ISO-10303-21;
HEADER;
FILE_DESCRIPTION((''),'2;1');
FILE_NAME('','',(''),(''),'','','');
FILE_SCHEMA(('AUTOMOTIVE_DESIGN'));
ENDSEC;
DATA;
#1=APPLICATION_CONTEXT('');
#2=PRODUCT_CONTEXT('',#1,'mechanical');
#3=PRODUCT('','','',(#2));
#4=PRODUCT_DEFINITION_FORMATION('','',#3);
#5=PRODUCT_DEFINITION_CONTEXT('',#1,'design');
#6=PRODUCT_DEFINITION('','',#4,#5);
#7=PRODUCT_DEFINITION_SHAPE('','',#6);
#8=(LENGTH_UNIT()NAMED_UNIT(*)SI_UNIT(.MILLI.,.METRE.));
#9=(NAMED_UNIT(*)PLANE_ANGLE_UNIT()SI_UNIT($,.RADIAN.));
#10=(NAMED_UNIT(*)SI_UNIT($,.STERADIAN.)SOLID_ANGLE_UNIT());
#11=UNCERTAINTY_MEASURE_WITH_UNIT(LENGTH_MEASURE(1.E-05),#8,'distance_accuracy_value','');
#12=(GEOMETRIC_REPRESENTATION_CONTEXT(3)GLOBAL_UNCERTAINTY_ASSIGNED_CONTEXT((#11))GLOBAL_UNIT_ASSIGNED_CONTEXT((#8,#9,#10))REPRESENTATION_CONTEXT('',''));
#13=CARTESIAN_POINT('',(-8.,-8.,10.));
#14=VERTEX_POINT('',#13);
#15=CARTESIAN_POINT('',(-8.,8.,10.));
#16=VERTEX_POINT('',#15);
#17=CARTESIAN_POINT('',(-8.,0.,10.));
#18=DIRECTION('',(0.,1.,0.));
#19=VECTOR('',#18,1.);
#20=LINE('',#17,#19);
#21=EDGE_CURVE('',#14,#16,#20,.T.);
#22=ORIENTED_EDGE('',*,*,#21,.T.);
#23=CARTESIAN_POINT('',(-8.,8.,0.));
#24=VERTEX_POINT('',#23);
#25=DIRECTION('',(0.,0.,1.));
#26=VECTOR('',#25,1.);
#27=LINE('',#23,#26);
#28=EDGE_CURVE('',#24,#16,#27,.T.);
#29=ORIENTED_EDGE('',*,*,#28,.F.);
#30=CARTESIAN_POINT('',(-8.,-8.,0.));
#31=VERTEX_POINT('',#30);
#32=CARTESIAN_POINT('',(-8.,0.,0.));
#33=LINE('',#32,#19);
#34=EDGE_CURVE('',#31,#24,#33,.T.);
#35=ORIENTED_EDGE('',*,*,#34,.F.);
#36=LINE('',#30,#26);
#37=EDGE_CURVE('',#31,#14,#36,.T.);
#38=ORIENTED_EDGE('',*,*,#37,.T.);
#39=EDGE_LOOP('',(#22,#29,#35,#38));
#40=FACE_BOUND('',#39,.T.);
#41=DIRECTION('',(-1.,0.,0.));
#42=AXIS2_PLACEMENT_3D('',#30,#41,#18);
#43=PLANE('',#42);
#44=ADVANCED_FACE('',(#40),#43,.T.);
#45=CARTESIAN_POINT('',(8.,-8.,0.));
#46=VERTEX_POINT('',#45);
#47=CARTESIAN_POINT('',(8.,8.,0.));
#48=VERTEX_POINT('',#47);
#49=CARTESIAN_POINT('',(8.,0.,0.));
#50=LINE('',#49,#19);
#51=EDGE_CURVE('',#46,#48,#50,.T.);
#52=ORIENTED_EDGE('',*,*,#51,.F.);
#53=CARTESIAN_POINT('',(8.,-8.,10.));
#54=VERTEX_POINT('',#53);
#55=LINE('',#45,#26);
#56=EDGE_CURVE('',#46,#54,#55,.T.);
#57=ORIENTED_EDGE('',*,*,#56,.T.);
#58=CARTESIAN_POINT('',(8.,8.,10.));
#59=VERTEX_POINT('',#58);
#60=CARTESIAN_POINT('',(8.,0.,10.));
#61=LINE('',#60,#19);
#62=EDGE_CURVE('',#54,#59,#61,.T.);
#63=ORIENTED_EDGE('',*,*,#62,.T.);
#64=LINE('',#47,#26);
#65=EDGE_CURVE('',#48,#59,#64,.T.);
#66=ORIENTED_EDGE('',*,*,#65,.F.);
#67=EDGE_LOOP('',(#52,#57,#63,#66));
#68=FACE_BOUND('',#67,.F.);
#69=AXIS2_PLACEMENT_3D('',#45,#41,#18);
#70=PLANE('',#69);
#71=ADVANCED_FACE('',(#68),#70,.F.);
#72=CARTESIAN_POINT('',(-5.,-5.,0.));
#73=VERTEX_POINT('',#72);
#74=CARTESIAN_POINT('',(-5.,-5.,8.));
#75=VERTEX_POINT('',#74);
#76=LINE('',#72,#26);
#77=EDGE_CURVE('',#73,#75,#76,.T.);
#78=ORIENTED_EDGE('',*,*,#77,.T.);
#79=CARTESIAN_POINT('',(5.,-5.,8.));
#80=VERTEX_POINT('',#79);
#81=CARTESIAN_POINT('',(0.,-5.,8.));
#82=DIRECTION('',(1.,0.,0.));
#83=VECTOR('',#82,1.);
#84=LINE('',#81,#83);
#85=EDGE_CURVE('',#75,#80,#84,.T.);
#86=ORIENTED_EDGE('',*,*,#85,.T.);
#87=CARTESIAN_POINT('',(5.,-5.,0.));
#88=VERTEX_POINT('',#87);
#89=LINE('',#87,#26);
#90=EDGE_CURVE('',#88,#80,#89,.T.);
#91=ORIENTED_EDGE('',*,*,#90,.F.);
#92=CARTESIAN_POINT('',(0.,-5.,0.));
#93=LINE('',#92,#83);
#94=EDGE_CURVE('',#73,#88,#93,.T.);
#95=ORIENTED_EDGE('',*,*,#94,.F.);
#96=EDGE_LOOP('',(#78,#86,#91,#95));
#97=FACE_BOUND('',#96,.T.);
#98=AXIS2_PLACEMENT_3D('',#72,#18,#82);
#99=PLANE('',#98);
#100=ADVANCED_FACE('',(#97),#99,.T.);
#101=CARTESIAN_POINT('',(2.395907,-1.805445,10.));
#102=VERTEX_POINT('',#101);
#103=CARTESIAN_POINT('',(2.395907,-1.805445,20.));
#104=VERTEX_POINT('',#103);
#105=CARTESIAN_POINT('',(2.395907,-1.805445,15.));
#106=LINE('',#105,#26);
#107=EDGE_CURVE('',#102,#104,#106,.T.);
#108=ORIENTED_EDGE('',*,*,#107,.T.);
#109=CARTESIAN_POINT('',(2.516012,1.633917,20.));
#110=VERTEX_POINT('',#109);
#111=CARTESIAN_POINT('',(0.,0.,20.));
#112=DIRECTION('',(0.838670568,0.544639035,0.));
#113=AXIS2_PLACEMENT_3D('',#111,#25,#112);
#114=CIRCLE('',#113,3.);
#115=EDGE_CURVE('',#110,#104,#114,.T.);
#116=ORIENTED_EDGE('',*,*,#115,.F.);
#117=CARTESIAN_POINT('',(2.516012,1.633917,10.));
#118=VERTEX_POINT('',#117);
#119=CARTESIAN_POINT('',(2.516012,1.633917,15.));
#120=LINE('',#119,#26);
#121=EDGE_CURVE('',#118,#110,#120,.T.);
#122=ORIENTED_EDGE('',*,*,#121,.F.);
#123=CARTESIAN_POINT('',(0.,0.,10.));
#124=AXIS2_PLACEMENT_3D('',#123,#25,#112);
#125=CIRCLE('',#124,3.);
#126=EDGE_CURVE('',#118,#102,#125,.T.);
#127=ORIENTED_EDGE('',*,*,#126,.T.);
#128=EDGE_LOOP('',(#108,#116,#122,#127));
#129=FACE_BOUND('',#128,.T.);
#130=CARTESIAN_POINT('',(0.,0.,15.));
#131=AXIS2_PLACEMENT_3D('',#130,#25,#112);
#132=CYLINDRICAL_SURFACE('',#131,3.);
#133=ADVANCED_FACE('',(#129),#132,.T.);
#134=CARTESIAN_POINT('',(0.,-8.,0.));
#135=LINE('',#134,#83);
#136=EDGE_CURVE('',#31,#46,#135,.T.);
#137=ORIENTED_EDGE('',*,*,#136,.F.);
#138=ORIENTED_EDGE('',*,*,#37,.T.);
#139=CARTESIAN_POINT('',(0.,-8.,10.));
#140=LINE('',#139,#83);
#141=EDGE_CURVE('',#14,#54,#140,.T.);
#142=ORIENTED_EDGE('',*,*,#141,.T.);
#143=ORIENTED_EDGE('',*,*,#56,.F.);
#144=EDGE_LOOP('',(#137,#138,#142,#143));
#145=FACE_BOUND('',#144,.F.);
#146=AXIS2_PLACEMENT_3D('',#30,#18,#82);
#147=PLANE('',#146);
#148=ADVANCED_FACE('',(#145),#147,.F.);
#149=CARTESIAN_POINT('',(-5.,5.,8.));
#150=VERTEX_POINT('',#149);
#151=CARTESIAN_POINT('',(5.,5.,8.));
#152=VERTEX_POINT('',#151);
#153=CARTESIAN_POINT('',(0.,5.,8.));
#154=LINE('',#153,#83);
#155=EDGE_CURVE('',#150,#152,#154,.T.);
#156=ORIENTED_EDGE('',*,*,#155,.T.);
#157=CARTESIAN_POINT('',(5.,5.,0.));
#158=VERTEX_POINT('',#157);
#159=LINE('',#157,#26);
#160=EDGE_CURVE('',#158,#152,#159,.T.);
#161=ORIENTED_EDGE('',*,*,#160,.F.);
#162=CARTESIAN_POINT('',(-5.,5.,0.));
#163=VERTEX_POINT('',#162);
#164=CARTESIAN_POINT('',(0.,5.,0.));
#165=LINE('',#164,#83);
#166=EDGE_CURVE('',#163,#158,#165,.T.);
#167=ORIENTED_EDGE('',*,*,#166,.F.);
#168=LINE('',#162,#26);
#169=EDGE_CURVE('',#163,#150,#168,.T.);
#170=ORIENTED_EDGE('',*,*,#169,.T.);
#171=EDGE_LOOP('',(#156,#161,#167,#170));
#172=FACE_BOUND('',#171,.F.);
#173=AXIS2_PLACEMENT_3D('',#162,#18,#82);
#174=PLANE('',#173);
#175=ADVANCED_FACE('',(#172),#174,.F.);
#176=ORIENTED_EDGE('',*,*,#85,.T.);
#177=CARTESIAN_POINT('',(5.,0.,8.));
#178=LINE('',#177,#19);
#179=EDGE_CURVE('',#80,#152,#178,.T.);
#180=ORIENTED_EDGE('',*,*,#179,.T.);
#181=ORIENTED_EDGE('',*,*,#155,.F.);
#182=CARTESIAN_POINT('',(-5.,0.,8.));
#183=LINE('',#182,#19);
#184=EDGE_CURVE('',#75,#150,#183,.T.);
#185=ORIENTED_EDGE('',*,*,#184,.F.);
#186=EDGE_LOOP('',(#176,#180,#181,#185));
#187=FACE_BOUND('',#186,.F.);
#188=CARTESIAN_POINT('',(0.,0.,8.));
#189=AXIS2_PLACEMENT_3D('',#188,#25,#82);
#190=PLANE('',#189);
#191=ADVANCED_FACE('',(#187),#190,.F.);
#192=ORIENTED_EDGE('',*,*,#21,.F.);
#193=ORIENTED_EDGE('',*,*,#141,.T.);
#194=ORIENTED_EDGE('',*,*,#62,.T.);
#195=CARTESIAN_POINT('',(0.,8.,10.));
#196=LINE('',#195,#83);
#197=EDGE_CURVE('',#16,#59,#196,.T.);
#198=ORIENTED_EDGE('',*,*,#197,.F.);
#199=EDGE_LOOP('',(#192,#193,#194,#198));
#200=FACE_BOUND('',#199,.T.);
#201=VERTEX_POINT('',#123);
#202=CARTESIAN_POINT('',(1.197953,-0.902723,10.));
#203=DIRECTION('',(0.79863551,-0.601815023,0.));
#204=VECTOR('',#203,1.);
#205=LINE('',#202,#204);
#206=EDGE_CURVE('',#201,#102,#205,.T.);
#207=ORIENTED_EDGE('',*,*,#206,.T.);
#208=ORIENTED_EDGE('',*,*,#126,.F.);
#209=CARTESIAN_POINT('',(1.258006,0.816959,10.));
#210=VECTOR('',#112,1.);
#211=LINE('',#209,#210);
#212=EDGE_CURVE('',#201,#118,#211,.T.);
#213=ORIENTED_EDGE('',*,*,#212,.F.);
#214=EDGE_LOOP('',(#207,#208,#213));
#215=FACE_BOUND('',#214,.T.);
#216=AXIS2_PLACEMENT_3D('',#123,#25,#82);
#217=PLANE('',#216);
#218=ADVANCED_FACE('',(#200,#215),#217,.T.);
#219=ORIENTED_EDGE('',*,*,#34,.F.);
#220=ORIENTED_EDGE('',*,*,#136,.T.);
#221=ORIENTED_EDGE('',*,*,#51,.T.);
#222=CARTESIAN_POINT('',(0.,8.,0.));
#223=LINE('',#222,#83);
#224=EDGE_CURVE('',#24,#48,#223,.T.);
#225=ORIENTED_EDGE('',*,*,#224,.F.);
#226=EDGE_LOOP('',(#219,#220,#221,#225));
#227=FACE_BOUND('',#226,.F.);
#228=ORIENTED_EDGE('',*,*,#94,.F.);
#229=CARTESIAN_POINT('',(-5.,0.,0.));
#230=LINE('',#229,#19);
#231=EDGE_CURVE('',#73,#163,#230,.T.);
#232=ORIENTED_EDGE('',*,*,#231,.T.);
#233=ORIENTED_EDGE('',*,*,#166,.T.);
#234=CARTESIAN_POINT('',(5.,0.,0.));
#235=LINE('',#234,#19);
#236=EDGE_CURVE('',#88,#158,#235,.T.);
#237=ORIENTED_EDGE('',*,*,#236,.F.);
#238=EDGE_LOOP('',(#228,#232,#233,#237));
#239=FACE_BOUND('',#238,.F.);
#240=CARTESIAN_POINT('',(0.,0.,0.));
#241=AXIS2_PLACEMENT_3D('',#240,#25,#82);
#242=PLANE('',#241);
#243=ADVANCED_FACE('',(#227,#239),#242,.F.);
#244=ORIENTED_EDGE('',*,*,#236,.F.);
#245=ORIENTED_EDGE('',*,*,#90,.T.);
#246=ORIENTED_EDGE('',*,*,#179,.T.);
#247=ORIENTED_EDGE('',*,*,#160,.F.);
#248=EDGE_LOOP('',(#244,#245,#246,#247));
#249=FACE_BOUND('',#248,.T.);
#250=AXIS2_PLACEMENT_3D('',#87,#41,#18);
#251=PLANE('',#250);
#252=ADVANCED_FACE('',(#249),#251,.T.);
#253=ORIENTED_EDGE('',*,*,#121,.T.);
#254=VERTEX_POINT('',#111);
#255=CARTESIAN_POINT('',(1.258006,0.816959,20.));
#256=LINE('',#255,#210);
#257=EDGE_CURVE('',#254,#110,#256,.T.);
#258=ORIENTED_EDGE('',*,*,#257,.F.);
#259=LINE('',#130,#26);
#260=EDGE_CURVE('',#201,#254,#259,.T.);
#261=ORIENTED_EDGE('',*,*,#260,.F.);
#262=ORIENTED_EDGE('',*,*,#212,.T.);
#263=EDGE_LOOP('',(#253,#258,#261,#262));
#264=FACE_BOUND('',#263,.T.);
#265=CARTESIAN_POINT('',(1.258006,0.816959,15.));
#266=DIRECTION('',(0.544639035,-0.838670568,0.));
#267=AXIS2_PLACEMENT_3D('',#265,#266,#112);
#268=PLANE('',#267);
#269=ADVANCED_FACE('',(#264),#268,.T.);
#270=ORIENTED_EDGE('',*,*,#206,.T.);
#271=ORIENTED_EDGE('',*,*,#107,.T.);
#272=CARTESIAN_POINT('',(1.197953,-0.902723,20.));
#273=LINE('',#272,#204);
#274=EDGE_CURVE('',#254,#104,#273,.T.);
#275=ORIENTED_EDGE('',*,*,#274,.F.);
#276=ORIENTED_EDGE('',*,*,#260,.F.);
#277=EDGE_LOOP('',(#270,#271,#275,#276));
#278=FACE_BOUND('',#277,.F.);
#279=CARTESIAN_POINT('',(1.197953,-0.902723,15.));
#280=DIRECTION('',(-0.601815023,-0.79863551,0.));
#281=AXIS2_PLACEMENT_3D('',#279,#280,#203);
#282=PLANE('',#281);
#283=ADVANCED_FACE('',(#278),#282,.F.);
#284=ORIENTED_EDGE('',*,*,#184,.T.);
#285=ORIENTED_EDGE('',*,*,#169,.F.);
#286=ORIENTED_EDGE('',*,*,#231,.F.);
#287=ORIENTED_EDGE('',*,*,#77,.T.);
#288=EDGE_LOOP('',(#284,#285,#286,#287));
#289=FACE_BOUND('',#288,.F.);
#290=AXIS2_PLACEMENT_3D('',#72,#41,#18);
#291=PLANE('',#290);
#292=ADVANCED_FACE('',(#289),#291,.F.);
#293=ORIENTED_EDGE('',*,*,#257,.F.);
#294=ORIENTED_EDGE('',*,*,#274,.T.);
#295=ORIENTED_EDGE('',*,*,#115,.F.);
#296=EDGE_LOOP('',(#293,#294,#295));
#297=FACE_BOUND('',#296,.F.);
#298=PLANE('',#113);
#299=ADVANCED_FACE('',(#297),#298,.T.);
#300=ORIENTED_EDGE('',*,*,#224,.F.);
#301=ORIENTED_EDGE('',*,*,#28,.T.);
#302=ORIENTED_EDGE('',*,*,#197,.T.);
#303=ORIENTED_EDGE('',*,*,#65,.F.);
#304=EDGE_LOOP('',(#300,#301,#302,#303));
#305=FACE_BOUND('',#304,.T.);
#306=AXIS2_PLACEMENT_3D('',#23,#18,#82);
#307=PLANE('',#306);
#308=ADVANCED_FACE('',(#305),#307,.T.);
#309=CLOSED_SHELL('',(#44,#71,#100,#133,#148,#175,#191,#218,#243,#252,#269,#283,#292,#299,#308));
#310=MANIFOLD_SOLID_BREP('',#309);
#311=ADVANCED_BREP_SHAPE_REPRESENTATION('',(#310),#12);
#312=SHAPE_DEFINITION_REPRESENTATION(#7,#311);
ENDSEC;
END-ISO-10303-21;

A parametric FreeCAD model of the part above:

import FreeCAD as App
import Part
import Sketcher

V = App.Vector


def add_polygon(sketch, points):
    """Adds a closed chain of lines whose ends are joined by coincident constraints."""
    first, n = sketch.GeometryCount, len(points)
    for a, b in zip(points, points[1:] + points[:1]):
        sketch.addGeometry(Part.LineSegment(App.Vector(*a, 0), App.Vector(*b, 0)), False)
    for i in range(n):
        sketch.addConstraint(Sketcher.Constraint("Coincident", first + i, 2, first + (i + 1) % n, 1))

doc = App.newDocument("Part")
body = doc.addObject("PartDesign::Body", "Body")

sketch1 = body.newObject("Sketcher::SketchObject", "Sketch")
sketch1.AttachmentSupport = (doc.getObject("XY_Plane"), [""])
sketch1.MapMode = "FlatFace"
add_polygon(sketch1, [(-5, 5), (-5, -5), (5, -5), (5, 5)])
sketch1.addConstraint(Sketcher.Constraint("Vertical", 0))
sketch1.addConstraint(Sketcher.Constraint("Horizontal", 1))
sketch1.addConstraint(Sketcher.Constraint("Vertical", 2))
sketch1.addConstraint(Sketcher.Constraint("Horizontal", 3))
sketch1.addConstraint(Sketcher.Constraint("Symmetric", 0, 2, 2, 2, -1, 1))
sketch1.addConstraint(Sketcher.Constraint("Equal", 3, 0))
sketch1.addConstraint(Sketcher.Constraint("DistanceX", 1, 1, 1, 2, 10.0))
pad1 = body.newObject("PartDesign::Pad", "Pad")
pad1.Profile = sketch1
pad1.Length = 8
body2 = doc.addObject("PartDesign::Body", "Body001")

sketch2 = body2.newObject("Sketcher::SketchObject", "Sketch001")
sketch2.AttachmentSupport = (doc.getObject("XZ_Plane001"), [""])
sketch2.MapMode = "FlatFace"
add_polygon(sketch2, [(0, 10), (0, 0), (3, 0), (3, 10)])
sketch2.addConstraint(Sketcher.Constraint("Vertical", 0))
sketch2.addConstraint(Sketcher.Constraint("Horizontal", 1))
sketch2.addConstraint(Sketcher.Constraint("Vertical", 2))
sketch2.addConstraint(Sketcher.Constraint("Horizontal", 3))
sketch2.addConstraint(Sketcher.Constraint("Coincident", 0, 2, -1, 1))
sketch2.addConstraint(Sketcher.Constraint("DistanceX", 1, 1, 1, 2, 3.0))
sketch2.addConstraint(Sketcher.Constraint("DistanceY", 0, 2, 0, 1, 10.0))
revolution = body2.newObject("PartDesign::Revolution", "Revolution")
revolution.Profile = sketch2
revolution.ReferenceAxis = (sketch2, ["V_Axis"])
revolution.Angle = 290
body3 = doc.addObject("PartDesign::Body", "Body002")
doc.recompute()

body2.Placement = App.Placement(V(0, 0, 10), App.Rotation(V(0, 0, 1), 33))
boolean = body3.newObject("PartDesign::Boolean", "Boolean")
boolean.Type = "Fuse"
boolean.addObjects([body2])
body4 = doc.addObject("PartDesign::Body", "Body003")

sketch3 = body4.newObject("Sketcher::SketchObject", "Sketch002")
sketch3.AttachmentSupport = (doc.getObject("XY_Plane003"), [""])
sketch3.MapMode = "FlatFace"
add_polygon(sketch3, [(-8, 8), (-8, -8), (8, -8), (8, 8)])
sketch3.addConstraint(Sketcher.Constraint("Vertical", 0))
sketch3.addConstraint(Sketcher.Constraint("Horizontal", 1))
sketch3.addConstraint(Sketcher.Constraint("Vertical", 2))
sketch3.addConstraint(Sketcher.Constraint("Horizontal", 3))
sketch3.addConstraint(Sketcher.Constraint("Symmetric", 0, 2, 2, 2, -1, 1))
sketch3.addConstraint(Sketcher.Constraint("Equal", 3, 0))
sketch3.addConstraint(Sketcher.Constraint("DistanceX", 1, 1, 1, 2, 16.0))
pad2 = body4.newObject("PartDesign::Pad", "Pad001")
pad2.Profile = sketch3
pad2.Length = 10
doc.recompute()

boolean2 = body4.newObject("PartDesign::Boolean", "Boolean001")
boolean2.Type = "Fuse"
boolean2.addObjects([body3])
doc.recompute()

boolean3 = body4.newObject("PartDesign::Boolean", "Boolean002")
boolean3.Type = "Cut"
boolean3.addObjects([body])

doc.recompute()
